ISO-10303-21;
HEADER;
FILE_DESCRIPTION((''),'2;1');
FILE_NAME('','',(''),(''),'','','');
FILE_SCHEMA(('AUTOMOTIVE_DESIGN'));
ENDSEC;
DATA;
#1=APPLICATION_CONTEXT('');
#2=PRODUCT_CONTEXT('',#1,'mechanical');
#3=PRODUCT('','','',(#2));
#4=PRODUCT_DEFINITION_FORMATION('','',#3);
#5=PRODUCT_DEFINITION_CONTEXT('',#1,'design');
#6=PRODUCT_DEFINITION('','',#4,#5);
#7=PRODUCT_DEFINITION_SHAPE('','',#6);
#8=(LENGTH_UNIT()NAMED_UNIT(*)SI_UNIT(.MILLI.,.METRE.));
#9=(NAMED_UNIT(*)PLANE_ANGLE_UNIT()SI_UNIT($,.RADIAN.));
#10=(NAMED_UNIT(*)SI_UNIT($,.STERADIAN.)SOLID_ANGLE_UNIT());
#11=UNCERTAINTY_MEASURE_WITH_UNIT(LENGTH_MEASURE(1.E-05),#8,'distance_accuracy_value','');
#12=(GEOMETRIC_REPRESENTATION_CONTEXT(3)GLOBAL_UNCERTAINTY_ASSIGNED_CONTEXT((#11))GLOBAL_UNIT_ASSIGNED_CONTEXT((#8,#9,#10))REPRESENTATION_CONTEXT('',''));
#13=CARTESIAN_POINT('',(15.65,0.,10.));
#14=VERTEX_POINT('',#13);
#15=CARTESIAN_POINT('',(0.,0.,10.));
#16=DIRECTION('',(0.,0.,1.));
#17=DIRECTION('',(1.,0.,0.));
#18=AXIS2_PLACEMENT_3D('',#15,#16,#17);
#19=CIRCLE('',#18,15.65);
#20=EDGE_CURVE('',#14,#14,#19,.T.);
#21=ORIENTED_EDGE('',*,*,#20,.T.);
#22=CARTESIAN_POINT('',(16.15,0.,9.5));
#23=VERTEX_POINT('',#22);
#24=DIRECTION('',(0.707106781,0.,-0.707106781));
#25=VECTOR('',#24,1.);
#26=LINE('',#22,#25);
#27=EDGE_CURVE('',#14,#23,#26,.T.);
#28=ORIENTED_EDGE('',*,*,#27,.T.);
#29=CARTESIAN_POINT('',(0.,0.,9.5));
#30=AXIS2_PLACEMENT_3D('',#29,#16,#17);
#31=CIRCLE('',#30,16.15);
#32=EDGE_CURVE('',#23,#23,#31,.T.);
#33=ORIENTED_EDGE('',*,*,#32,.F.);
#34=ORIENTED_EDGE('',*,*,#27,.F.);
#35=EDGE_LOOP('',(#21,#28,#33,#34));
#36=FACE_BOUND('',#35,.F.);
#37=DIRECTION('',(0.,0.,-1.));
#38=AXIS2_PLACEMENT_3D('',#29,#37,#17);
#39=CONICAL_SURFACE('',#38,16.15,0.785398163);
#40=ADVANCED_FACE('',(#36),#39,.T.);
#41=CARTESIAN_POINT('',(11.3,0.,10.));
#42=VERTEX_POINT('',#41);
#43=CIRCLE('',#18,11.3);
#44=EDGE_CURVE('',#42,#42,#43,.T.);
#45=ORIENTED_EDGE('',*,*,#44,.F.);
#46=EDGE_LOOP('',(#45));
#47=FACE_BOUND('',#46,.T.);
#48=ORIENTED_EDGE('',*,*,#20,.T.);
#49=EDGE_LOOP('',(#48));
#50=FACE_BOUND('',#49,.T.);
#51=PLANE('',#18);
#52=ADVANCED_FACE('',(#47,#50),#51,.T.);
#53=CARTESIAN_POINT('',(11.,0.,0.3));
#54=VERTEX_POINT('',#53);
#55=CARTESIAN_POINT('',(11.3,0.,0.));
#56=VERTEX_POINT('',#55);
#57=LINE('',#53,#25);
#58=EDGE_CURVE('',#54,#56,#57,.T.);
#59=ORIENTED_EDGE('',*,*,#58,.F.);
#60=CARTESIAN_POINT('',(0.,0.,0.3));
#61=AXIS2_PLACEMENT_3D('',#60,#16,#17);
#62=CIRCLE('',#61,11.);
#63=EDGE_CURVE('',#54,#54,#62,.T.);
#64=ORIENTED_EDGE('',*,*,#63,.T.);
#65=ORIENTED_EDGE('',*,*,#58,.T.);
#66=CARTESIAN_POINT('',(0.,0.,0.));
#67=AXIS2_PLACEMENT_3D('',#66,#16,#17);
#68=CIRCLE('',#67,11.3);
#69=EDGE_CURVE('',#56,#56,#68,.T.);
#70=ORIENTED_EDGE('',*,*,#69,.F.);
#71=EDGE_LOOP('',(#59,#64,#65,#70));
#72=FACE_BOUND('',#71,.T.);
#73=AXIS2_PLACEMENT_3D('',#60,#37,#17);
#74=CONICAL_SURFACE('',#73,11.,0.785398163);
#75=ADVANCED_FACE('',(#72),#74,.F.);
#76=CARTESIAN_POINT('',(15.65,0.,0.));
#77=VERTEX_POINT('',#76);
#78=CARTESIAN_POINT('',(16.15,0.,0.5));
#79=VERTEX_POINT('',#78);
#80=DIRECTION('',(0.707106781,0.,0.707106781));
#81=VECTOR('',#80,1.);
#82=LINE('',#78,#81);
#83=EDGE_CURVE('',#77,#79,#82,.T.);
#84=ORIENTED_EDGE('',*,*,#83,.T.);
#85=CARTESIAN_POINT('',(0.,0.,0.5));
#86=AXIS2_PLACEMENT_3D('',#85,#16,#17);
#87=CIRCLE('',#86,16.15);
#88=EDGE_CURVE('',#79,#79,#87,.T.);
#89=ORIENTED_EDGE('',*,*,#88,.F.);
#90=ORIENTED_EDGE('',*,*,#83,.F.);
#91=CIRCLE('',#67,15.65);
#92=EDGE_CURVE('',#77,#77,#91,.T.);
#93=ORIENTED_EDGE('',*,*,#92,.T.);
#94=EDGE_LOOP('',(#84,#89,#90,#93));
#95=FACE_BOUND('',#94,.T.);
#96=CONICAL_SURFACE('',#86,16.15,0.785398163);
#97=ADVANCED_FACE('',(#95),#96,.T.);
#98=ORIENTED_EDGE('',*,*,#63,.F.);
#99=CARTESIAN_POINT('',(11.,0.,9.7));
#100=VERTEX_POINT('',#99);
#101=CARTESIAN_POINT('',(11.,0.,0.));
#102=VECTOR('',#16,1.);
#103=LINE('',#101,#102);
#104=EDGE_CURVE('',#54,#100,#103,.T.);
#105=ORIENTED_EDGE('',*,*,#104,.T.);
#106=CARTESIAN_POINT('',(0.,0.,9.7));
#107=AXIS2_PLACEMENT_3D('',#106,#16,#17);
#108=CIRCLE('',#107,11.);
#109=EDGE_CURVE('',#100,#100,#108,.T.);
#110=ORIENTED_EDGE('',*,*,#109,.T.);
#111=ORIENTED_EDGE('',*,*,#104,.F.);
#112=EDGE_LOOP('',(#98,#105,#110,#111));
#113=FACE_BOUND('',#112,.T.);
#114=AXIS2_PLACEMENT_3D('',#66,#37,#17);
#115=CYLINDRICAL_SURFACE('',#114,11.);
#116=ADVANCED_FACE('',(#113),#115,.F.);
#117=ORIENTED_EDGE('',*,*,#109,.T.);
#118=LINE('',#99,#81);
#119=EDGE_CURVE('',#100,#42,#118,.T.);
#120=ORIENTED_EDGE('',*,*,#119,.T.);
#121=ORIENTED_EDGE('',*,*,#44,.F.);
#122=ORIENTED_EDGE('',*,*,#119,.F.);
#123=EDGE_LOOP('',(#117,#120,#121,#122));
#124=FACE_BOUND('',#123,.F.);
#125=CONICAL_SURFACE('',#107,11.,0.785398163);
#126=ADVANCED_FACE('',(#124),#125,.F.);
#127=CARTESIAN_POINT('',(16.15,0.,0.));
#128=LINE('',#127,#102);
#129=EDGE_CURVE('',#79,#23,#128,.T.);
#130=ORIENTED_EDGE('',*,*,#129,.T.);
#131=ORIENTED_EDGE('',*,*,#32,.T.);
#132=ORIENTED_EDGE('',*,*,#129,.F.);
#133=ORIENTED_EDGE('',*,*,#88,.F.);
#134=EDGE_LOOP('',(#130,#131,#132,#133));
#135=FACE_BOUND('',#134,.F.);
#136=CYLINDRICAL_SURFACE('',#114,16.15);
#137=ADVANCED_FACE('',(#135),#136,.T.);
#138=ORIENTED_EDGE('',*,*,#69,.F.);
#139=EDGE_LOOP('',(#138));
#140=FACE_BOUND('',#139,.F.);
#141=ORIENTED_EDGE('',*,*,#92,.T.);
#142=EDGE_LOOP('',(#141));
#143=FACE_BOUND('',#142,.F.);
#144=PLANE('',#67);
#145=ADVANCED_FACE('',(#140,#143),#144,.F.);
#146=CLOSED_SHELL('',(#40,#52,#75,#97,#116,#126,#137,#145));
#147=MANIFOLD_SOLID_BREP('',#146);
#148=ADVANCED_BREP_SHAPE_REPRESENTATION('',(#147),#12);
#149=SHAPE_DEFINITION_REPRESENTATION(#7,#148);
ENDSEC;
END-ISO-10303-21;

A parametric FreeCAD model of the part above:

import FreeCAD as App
import Part
import Sketcher


def edges_at(feature, points):
    """Names of the edges that pass closest to the given points."""
    edges = feature.Shape.Edges
    near = lambda p: min(range(len(edges)), key=lambda i: edges[i].distToShape(Part.Vertex(*p))[0])
    return sorted({f"Edge{near(p) + 1}" for p in points})

doc = App.newDocument("Part")
body = doc.addObject("PartDesign::Body", "Body")

sketch1 = body.newObject("Sketcher::SketchObject", "Sketch")
sketch1.AttachmentSupport = (doc.getObject("XY_Plane"), [""])
sketch1.MapMode = "FlatFace"
sketch1.addGeometry([
    Part.Circle(App.Vector(0, 0, 0), App.Vector(0, 0, 1), 16),
    Part.Circle(App.Vector(0, 0, 0), App.Vector(0, 0, 1), 11),
], False)
sketch1.addConstraint([
    Sketcher.Constraint("Coincident", 0, 3, -1, 1),
    Sketcher.Constraint("Coincident", 1, 3, -1, 1),
    Sketcher.Constraint("Diameter", 1, 22.0),
    Sketcher.Constraint("Diameter", 0, 32.3),
])
pad1 = body.newObject("PartDesign::Pad", "Pad")
pad1.Profile = sketch1
pad1.Length = 10
doc.recompute()

chamfer = body.newObject("PartDesign::Chamfer", "Chamfer")
chamfer.Base = (pad1, edges_at(pad1, [(-11, 0, 10), (-11, 0, 0)]))
chamfer.Size = 0.3
doc.recompute()

chamfer2 = body.newObject("PartDesign::Chamfer", "Chamfer001")
chamfer2.Base = (chamfer, edges_at(chamfer, [(-16.15, 0, 10), (-16.15, 0, 0)]))
chamfer2.Size = 0.5

doc.recompute()
